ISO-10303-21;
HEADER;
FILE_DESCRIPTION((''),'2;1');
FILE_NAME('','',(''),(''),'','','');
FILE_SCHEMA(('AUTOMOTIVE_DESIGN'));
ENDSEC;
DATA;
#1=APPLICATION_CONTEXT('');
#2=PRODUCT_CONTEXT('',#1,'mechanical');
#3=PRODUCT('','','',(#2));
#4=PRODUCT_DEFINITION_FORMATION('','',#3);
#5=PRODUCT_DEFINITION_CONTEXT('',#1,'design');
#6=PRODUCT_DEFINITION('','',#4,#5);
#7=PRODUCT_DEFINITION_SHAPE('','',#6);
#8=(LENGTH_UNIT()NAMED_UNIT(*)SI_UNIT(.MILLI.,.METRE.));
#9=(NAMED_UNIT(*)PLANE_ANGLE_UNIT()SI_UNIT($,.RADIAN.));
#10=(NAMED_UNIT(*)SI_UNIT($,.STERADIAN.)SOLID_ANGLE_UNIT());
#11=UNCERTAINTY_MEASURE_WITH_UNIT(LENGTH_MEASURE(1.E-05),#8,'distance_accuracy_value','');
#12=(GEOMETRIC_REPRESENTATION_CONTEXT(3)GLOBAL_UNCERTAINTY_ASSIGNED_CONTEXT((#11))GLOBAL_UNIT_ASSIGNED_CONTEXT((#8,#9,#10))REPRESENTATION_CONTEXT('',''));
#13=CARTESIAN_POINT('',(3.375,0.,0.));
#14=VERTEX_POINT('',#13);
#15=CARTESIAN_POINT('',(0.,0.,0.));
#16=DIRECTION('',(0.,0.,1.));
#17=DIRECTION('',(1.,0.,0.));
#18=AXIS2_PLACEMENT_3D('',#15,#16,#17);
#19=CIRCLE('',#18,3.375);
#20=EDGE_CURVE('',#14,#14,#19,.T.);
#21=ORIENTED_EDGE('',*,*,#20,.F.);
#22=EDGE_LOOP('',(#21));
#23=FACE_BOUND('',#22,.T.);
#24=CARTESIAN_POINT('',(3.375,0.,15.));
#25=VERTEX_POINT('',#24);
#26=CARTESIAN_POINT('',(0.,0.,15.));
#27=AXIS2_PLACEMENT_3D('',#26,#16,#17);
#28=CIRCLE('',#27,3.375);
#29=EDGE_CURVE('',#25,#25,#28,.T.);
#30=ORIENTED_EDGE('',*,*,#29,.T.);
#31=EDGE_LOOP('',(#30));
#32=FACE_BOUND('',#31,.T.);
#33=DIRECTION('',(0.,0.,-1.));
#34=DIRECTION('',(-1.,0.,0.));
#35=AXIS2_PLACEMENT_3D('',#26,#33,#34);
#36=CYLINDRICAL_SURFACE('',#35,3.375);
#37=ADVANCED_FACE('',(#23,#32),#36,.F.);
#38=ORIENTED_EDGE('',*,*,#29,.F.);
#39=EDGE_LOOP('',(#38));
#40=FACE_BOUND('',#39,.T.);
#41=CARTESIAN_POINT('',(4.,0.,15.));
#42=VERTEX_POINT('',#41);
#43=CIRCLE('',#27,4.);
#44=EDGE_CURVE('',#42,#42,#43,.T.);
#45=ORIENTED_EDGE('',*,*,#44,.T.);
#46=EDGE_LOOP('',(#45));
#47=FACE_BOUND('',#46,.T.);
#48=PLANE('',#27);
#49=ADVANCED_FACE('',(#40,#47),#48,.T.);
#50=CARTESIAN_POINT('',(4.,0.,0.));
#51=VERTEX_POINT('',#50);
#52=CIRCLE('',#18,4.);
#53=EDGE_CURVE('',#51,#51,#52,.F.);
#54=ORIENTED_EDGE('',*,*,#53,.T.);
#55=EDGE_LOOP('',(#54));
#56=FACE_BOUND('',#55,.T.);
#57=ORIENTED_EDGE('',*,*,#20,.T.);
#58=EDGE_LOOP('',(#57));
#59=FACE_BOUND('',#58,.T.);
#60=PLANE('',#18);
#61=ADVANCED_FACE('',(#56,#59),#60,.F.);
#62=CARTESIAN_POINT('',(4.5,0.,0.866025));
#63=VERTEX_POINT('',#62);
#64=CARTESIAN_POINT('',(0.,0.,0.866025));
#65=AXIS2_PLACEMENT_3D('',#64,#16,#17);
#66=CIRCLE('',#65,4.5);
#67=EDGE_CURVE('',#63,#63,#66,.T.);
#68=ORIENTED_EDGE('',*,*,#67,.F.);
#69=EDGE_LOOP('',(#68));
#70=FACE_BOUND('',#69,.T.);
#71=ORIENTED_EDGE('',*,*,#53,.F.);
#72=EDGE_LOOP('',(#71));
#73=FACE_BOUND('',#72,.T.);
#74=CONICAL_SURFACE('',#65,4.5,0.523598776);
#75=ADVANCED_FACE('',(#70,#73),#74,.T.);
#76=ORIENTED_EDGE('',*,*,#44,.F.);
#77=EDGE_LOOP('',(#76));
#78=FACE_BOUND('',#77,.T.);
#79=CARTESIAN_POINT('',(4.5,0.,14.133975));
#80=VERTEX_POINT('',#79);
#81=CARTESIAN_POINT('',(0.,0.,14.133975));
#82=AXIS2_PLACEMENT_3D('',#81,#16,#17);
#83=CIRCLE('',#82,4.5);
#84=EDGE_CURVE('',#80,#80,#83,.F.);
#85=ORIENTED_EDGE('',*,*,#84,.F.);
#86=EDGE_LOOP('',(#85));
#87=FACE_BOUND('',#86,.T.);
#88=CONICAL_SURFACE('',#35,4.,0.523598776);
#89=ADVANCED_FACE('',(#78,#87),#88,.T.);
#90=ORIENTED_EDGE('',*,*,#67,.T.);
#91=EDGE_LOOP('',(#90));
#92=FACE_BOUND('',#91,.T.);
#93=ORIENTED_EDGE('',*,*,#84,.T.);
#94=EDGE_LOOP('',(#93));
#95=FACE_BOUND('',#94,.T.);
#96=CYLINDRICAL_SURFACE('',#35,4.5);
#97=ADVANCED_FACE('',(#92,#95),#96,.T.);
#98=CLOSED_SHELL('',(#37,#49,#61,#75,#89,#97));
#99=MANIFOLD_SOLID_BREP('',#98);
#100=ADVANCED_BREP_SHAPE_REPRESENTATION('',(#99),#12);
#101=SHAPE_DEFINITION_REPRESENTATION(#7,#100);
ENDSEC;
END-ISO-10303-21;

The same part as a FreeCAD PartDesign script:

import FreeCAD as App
import Part
import Sketcher

V = App.Vector
Q = App.Units.Quantity


def edges_at(feature, points):
    """Names of the edges that pass closest to the given points."""
    edges = feature.Shape.Edges
    near = lambda p: min(range(len(edges)), key=lambda i: edges[i].distToShape(Part.Vertex(*p))[0])
    return sorted({f"Edge{near(p) + 1}" for p in points})

doc = App.newDocument("Part")
body = doc.addObject("PartDesign::Body", "Body")

# Sketch on XY plane
sketch1 = doc.addObject("Sketcher::SketchObject", "Sketch")
body.addObject(sketch1)
sketch1.AttachmentSupport = (doc.XY_Plane, [""])
sketch1.MapMode = "FlatFace"
sketch1.addGeometry([
    Part.Circle(V(0, 0, 0), V(0, 0, 1), 4.5),
    Part.Circle(V(0, 0, 0), V(0, 0, 1), 3.375),
], False)
sketch1.addConstraint([
    Sketcher.Constraint("Coincident", 0, 3, -1, 1),
    Sketcher.Constraint("Coincident", 1, 3, -1, 1),
    Sketcher.Constraint("Diameter", 0, Q("9 mm")),
    Sketcher.Constraint("Diameter", 1, Q("6.75 mm")),
])
pad1 = doc.addObject("PartDesign::Pad", "Pad")
body.addObject(pad1)
pad1.Profile = sketch1
pad1.Length = 15
doc.recompute()

chamfer = doc.addObject("PartDesign::Chamfer", "Chamfer")
body.addObject(chamfer)
chamfer.Base = (pad1, edges_at(pad1, [(-4.5, 0, 0)]))
chamfer.ChamferType = "Two distances"
chamfer.Size = 0.5
chamfer.Size2 = 0.866025
chamfer.FlipDirection = True
doc.recompute()

chamfer2 = doc.addObject("PartDesign::Chamfer", "Chamfer001")
body.addObject(chamfer2)
chamfer2.Base = (chamfer, edges_at(chamfer, [(-4.5, 0, 15)]))
chamfer2.ChamferType = "Two distances"
chamfer2.Size = 0.5
chamfer2.Size2 = 0.866025
chamfer2.FlipDirection = True

doc.recompute()
